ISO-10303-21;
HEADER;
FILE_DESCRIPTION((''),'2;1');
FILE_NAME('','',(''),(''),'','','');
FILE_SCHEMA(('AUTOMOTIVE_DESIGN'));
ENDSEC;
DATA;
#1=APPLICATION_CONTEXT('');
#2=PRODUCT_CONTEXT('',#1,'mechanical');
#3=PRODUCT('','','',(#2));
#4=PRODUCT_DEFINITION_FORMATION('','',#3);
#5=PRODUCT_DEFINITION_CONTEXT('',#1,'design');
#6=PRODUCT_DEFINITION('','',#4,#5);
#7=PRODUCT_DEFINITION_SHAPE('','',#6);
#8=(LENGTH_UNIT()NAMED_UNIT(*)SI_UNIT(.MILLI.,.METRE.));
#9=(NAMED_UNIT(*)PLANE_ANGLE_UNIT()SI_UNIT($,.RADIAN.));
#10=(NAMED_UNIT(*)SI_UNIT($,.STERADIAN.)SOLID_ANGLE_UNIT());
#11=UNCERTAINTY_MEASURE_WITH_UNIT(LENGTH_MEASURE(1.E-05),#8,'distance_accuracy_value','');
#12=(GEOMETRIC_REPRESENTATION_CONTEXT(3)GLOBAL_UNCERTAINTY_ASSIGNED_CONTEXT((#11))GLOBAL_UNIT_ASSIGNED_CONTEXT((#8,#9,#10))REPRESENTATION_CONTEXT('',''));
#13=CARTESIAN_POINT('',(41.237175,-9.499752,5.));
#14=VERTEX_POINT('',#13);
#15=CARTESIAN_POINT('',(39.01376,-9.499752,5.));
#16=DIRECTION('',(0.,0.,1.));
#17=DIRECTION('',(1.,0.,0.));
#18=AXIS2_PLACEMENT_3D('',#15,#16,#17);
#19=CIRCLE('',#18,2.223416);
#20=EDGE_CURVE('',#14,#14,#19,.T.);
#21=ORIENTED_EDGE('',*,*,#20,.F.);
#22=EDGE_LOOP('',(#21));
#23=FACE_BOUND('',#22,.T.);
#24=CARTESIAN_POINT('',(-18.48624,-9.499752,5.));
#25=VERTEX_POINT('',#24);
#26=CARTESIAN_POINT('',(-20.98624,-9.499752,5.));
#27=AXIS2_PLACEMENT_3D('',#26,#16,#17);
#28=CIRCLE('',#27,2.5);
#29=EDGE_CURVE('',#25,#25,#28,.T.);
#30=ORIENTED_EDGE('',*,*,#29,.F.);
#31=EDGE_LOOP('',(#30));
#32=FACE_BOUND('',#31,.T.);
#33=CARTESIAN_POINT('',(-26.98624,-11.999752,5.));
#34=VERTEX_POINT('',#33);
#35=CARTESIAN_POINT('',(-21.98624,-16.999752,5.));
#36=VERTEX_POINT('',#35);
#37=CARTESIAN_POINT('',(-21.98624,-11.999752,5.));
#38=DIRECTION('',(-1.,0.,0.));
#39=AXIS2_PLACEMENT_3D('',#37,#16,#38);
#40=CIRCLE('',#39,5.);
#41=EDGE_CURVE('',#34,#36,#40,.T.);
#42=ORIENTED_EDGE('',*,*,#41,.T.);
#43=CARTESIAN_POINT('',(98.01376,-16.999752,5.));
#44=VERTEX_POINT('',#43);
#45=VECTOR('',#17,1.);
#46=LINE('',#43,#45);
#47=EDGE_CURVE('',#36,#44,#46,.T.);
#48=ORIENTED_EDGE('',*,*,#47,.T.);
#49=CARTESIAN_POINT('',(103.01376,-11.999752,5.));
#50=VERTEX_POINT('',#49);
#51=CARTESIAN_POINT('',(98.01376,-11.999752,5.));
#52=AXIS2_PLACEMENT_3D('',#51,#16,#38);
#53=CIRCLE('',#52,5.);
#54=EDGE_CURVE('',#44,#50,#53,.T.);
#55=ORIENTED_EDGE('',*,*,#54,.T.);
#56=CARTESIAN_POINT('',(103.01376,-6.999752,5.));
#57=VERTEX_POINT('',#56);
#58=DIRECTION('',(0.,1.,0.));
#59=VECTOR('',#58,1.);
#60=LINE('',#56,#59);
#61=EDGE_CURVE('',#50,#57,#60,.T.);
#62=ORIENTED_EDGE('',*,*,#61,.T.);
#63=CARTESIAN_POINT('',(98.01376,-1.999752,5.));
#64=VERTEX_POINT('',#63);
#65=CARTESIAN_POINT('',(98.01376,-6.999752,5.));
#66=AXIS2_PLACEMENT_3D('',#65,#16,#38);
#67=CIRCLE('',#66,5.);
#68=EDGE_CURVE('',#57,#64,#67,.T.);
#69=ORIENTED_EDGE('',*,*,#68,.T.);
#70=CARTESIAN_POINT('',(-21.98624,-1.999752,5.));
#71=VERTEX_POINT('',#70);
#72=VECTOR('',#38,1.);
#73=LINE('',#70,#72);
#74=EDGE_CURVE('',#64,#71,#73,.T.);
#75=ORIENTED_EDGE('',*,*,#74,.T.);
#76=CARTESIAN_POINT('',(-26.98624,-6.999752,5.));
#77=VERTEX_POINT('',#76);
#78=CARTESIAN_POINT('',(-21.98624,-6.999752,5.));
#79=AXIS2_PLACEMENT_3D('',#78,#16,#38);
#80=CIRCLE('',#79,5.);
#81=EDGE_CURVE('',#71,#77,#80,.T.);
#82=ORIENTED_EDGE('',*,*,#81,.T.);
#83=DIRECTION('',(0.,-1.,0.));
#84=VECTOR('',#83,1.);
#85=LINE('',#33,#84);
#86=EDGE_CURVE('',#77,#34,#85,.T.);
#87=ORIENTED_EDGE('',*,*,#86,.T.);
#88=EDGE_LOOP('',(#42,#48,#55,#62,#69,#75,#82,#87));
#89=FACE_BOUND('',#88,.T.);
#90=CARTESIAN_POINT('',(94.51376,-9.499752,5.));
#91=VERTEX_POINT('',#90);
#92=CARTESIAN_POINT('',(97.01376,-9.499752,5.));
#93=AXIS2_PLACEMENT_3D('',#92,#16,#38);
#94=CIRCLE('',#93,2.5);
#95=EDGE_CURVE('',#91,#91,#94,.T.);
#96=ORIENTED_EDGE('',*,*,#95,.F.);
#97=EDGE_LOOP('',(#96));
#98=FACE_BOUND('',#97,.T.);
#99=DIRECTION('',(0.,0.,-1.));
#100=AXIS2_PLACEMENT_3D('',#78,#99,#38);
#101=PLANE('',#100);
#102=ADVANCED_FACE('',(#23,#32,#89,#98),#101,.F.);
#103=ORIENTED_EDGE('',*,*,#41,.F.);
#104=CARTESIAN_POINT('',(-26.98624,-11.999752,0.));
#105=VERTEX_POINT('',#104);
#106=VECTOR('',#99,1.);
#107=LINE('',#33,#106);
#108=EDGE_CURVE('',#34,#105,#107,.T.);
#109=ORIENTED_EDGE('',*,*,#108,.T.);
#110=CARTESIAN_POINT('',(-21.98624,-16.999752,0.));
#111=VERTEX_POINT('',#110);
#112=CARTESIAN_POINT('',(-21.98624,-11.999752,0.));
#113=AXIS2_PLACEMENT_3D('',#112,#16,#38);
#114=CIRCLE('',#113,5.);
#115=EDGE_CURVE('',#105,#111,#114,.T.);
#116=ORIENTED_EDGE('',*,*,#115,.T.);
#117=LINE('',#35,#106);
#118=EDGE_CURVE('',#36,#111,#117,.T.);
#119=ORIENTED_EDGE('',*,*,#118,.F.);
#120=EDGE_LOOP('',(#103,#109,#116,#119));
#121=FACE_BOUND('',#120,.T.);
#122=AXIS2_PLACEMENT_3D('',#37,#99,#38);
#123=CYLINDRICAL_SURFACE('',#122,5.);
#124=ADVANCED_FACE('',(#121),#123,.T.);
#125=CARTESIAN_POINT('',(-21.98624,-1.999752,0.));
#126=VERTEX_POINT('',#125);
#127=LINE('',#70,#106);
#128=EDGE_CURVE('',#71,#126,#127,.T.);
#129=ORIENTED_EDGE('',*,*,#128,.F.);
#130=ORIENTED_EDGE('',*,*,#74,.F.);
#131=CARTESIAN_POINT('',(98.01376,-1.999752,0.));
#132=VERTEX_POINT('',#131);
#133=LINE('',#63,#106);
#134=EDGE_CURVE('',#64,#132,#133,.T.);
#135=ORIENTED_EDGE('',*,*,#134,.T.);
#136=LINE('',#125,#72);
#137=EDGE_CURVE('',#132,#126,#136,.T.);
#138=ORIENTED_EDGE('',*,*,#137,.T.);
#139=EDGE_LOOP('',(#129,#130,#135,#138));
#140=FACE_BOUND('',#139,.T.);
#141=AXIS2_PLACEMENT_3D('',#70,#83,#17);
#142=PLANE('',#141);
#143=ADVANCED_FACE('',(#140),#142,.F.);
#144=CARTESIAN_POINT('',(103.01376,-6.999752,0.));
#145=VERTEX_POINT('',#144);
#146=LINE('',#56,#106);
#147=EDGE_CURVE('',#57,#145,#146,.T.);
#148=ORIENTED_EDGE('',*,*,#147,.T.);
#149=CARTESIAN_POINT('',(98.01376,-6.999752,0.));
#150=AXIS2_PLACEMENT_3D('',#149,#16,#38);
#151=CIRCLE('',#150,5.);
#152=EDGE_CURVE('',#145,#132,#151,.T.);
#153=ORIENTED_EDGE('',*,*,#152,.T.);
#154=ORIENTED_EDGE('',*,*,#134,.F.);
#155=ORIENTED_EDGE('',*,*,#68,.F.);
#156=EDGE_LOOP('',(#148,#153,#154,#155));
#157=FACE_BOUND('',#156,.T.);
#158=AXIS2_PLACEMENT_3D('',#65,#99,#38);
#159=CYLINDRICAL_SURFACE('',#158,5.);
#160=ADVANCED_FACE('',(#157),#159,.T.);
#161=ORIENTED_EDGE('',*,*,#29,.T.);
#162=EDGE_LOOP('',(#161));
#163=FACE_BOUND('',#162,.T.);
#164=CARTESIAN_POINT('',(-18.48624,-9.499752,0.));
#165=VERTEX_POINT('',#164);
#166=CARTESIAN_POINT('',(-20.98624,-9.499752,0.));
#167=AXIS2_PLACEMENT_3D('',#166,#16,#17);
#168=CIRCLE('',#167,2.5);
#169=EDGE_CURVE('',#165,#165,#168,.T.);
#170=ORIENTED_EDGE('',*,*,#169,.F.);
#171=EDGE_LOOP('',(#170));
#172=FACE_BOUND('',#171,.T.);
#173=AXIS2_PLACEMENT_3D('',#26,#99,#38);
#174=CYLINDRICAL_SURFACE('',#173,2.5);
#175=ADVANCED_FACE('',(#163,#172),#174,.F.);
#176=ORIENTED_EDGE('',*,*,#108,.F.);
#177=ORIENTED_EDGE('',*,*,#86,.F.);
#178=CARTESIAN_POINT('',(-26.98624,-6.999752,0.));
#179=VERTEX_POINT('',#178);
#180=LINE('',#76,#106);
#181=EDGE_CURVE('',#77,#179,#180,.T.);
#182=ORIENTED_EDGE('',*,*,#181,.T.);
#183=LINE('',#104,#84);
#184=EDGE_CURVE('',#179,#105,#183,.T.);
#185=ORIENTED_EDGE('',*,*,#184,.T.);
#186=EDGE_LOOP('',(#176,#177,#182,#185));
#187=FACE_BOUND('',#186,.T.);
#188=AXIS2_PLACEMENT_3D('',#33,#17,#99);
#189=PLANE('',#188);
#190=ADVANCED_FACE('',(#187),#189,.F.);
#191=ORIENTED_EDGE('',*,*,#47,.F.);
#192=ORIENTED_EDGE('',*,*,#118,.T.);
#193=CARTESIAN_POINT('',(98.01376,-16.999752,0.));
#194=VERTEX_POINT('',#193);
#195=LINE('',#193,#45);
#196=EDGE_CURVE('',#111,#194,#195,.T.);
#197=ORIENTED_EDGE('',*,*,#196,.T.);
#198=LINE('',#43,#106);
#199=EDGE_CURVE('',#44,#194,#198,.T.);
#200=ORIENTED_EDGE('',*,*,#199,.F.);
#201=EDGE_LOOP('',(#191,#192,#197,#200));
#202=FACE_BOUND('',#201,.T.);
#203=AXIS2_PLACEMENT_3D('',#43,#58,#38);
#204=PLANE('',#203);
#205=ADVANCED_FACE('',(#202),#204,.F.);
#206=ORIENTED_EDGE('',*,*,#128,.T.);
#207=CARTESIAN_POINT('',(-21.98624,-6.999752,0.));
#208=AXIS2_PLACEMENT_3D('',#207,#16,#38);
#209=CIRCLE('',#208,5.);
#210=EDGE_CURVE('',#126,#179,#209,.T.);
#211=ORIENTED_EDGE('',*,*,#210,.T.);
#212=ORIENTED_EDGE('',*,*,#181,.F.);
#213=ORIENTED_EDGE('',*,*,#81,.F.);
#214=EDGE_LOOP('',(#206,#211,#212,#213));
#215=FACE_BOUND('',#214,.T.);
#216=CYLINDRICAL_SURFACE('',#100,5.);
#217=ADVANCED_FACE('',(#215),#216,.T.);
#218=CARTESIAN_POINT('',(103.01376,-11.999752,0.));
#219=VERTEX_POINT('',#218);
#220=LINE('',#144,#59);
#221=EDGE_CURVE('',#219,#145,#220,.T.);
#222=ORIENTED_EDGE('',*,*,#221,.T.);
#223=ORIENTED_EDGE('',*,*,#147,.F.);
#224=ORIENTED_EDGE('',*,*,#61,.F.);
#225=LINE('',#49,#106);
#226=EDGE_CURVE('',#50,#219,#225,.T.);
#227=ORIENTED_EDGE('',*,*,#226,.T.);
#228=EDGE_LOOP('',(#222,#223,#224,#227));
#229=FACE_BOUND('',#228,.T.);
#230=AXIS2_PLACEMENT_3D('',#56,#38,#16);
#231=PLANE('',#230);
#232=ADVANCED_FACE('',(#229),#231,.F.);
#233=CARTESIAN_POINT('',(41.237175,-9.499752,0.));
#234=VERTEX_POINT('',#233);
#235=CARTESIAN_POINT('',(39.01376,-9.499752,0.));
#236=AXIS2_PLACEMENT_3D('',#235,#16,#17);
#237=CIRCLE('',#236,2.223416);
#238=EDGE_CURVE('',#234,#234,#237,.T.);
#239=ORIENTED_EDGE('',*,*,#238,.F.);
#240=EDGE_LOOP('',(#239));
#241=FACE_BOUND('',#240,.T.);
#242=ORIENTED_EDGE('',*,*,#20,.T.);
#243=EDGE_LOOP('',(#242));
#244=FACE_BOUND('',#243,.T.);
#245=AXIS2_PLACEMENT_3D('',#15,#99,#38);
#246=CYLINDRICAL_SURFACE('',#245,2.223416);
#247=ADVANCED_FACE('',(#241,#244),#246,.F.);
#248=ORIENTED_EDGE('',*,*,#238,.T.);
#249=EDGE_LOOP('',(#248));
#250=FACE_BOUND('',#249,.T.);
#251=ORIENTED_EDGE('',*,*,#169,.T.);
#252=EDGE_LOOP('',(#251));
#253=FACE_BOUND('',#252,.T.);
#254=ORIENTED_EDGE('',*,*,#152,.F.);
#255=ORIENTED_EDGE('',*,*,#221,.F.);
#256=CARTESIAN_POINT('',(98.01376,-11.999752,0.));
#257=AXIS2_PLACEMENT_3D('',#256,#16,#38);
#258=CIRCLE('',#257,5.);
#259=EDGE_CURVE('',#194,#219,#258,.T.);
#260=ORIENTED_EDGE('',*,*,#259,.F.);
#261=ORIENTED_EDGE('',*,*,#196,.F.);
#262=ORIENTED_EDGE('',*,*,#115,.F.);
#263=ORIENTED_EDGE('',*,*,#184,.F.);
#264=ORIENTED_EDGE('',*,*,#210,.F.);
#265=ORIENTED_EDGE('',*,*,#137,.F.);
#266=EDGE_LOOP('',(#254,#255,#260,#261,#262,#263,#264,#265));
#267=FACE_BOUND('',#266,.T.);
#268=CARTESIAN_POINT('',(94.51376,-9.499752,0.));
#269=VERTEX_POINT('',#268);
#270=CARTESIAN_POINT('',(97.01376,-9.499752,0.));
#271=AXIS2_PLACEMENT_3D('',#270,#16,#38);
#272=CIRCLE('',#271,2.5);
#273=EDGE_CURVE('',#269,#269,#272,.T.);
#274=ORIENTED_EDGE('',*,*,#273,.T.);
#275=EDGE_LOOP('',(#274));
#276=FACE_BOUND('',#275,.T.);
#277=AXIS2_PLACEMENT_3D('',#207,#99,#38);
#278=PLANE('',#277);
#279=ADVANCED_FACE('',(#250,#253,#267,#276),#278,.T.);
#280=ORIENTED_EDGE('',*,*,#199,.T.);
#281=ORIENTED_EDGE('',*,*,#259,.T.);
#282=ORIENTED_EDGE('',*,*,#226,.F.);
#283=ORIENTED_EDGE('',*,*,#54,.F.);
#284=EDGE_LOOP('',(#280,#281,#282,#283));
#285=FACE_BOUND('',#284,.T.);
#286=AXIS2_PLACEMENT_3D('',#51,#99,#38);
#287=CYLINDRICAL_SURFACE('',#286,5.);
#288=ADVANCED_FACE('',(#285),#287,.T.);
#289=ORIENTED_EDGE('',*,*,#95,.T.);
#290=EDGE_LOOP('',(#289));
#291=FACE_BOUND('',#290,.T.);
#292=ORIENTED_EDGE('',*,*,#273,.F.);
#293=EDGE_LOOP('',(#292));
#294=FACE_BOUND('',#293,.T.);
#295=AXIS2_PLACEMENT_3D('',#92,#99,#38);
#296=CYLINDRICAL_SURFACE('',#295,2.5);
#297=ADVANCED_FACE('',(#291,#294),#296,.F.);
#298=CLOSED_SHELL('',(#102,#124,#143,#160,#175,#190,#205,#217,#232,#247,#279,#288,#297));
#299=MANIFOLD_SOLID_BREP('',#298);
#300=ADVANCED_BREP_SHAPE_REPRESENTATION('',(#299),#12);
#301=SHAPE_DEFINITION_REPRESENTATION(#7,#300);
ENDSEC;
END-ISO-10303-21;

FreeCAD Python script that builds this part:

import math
import FreeCAD as App
import Part
import Sketcher

V = App.Vector

doc = App.newDocument("Part")
params = doc.addObject("Spreadsheet::Sheet", "Params")
for row, (alias, value) in enumerate([
    ("sketch1_diameter", "5 mm"),
    ("sketch1_radius", "5 mm"),
    ("sketch1_width", "120 mm"),
    ("sketch1_height", "5 mm"),
    ("pad1_length", "5 mm"),
], start=1):
    params.set(f"A{row}", alias)
    params.set(f"B{row}", "=" + value)
    params.setAlias(f"B{row}", alias)

body = doc.addObject("PartDesign::Body", "Body")

sketch1 = doc.addObject("Sketcher::SketchObject", "Sketch")
body.addObject(sketch1)
sketch1.AttachmentSupport = (doc.XY_Plane, [""])
sketch1.MapMode = "FlatFace"
sketch1.addGeometry(Part.LineSegment(V(98, -2, 0), V(-22, -2, 0)), False)
sketch1.addGeometry(Part.ArcOfCircle(Part.Circle(V(-22, -7, 0), V(0, 0, 1), 5), math.radians(90), math.radians(180)), False)
sketch1.addGeometry(Part.LineSegment(V(-27, -7, 0), V(-27, -12, 0)), False)
sketch1.addGeometry(Part.ArcOfCircle(Part.Circle(V(-22, -12, 0), V(0, 0, 1), 5), math.radians(180), math.radians(270)), False)
sketch1.addGeometry(Part.LineSegment(V(-22, -17, 0), V(98, -17, 0)), False)
sketch1.addGeometry(Part.ArcOfCircle(Part.Circle(V(98, -12, 0), V(0, 0, 1), 5), math.radians(-90), math.radians(0)), False)
sketch1.addGeometry(Part.LineSegment(V(103, -12, 0), V(103, -7, 0)), False)
sketch1.addGeometry(Part.ArcOfCircle(Part.Circle(V(98, -7, 0), V(0, 0, 1), 5), math.radians(0), math.radians(90)), False)
sketch1.addGeometry(Part.Circle(V(97, -9.5, 0), V(0, 0, 1), 2.5), False)
sketch1.addGeometry(Part.Circle(V(39, -9.5, 0), V(0, 0, 1), 2.2), False)
sketch1.addGeometry(Part.Circle(V(-21, -9.5, 0), V(0, 0, 1), 2.5), False)
sketch1.addConstraint(Sketcher.Constraint("Tangent", 0, 2, 1, 1))
sketch1.addConstraint(Sketcher.Constraint("Tangent", 1, 2, 2, 1))
sketch1.addConstraint(Sketcher.Constraint("Tangent", 2, 2, 3, 1))
sketch1.addConstraint(Sketcher.Constraint("Tangent", 3, 2, 4, 1))
sketch1.addConstraint(Sketcher.Constraint("Tangent", 4, 2, 5, 1))
sketch1.addConstraint(Sketcher.Constraint("Tangent", 5, 2, 6, 1))
sketch1.addConstraint(Sketcher.Constraint("Tangent", 6, 2, 7, 1))
sketch1.addConstraint(Sketcher.Constraint("Tangent", 7, 2, 0, 1))
sketch1.addConstraint(Sketcher.Constraint("Horizontal", 0))
sketch1.addConstraint(Sketcher.Constraint("Vertical", 2))
sketch1.addConstraint(Sketcher.Constraint("Horizontal", 4))
sketch1.addConstraint(Sketcher.Constraint("Vertical", 6))
sketch1.addConstraint(Sketcher.Constraint("Equal", 1, 3))
sketch1.addConstraint(Sketcher.Constraint("Equal", 3, 5))
sketch1.addConstraint(Sketcher.Constraint("Equal", 5, 7))
sketch1.addConstraint(Sketcher.Constraint("Equal", 8, 10))
sketch1.addConstraint(Sketcher.Constraint("Horizontal", 8, 3, 9, 3))
sketch1.addConstraint(Sketcher.Constraint("Horizontal", 9, 3, 10, 3))
sketch1.addConstraint(Sketcher.Constraint("Diameter", 8, 5.0))
sketch1.addConstraint(Sketcher.Constraint("Radius", 1, 5.0))
sketch1.addConstraint(Sketcher.Constraint("DistanceX", 0, 2, 0, 1, 120.0))
sketch1.addConstraint(Sketcher.Constraint("DistanceY", 2, 2, 2, 1, 5.0))
sketch1.addConstraint(Sketcher.Constraint("DistanceX", 8, 3, 7, 3, 1.0))
sketch1.addConstraint(Sketcher.Constraint("DistanceX", 9, 3, 8, 3, 58.0))
sketch1.addConstraint(Sketcher.Constraint("DistanceX", 1, 3, 10, 3, 1.0))
sketch1.addConstraint(Sketcher.Constraint("DistanceY", 8, 3, 7, 3, 2.5))
sketch1.addConstraint(Sketcher.Constraint("Diameter", 9, 4.446831))
sketch1.addConstraint(Sketcher.Constraint("DistanceX", 1, 3, -1, 1, 21.98624))
sketch1.addConstraint(Sketcher.Constraint("DistanceY", 1, 3, -1, 1, 6.999752))
sketch1.setExpression("Constraints[18]", "Params.sketch1_diameter")
sketch1.setExpression("Constraints[19]", "Params.sketch1_radius")
sketch1.setExpression("Constraints[20]", "Params.sketch1_width")
sketch1.setExpression("Constraints[21]", "Params.sketch1_height")
pad1 = doc.addObject("PartDesign::Pad", "Pad")
body.addObject(pad1)
pad1.Profile = sketch1
pad1.setExpression("Length", "Params.pad1_length")

doc.recompute()
